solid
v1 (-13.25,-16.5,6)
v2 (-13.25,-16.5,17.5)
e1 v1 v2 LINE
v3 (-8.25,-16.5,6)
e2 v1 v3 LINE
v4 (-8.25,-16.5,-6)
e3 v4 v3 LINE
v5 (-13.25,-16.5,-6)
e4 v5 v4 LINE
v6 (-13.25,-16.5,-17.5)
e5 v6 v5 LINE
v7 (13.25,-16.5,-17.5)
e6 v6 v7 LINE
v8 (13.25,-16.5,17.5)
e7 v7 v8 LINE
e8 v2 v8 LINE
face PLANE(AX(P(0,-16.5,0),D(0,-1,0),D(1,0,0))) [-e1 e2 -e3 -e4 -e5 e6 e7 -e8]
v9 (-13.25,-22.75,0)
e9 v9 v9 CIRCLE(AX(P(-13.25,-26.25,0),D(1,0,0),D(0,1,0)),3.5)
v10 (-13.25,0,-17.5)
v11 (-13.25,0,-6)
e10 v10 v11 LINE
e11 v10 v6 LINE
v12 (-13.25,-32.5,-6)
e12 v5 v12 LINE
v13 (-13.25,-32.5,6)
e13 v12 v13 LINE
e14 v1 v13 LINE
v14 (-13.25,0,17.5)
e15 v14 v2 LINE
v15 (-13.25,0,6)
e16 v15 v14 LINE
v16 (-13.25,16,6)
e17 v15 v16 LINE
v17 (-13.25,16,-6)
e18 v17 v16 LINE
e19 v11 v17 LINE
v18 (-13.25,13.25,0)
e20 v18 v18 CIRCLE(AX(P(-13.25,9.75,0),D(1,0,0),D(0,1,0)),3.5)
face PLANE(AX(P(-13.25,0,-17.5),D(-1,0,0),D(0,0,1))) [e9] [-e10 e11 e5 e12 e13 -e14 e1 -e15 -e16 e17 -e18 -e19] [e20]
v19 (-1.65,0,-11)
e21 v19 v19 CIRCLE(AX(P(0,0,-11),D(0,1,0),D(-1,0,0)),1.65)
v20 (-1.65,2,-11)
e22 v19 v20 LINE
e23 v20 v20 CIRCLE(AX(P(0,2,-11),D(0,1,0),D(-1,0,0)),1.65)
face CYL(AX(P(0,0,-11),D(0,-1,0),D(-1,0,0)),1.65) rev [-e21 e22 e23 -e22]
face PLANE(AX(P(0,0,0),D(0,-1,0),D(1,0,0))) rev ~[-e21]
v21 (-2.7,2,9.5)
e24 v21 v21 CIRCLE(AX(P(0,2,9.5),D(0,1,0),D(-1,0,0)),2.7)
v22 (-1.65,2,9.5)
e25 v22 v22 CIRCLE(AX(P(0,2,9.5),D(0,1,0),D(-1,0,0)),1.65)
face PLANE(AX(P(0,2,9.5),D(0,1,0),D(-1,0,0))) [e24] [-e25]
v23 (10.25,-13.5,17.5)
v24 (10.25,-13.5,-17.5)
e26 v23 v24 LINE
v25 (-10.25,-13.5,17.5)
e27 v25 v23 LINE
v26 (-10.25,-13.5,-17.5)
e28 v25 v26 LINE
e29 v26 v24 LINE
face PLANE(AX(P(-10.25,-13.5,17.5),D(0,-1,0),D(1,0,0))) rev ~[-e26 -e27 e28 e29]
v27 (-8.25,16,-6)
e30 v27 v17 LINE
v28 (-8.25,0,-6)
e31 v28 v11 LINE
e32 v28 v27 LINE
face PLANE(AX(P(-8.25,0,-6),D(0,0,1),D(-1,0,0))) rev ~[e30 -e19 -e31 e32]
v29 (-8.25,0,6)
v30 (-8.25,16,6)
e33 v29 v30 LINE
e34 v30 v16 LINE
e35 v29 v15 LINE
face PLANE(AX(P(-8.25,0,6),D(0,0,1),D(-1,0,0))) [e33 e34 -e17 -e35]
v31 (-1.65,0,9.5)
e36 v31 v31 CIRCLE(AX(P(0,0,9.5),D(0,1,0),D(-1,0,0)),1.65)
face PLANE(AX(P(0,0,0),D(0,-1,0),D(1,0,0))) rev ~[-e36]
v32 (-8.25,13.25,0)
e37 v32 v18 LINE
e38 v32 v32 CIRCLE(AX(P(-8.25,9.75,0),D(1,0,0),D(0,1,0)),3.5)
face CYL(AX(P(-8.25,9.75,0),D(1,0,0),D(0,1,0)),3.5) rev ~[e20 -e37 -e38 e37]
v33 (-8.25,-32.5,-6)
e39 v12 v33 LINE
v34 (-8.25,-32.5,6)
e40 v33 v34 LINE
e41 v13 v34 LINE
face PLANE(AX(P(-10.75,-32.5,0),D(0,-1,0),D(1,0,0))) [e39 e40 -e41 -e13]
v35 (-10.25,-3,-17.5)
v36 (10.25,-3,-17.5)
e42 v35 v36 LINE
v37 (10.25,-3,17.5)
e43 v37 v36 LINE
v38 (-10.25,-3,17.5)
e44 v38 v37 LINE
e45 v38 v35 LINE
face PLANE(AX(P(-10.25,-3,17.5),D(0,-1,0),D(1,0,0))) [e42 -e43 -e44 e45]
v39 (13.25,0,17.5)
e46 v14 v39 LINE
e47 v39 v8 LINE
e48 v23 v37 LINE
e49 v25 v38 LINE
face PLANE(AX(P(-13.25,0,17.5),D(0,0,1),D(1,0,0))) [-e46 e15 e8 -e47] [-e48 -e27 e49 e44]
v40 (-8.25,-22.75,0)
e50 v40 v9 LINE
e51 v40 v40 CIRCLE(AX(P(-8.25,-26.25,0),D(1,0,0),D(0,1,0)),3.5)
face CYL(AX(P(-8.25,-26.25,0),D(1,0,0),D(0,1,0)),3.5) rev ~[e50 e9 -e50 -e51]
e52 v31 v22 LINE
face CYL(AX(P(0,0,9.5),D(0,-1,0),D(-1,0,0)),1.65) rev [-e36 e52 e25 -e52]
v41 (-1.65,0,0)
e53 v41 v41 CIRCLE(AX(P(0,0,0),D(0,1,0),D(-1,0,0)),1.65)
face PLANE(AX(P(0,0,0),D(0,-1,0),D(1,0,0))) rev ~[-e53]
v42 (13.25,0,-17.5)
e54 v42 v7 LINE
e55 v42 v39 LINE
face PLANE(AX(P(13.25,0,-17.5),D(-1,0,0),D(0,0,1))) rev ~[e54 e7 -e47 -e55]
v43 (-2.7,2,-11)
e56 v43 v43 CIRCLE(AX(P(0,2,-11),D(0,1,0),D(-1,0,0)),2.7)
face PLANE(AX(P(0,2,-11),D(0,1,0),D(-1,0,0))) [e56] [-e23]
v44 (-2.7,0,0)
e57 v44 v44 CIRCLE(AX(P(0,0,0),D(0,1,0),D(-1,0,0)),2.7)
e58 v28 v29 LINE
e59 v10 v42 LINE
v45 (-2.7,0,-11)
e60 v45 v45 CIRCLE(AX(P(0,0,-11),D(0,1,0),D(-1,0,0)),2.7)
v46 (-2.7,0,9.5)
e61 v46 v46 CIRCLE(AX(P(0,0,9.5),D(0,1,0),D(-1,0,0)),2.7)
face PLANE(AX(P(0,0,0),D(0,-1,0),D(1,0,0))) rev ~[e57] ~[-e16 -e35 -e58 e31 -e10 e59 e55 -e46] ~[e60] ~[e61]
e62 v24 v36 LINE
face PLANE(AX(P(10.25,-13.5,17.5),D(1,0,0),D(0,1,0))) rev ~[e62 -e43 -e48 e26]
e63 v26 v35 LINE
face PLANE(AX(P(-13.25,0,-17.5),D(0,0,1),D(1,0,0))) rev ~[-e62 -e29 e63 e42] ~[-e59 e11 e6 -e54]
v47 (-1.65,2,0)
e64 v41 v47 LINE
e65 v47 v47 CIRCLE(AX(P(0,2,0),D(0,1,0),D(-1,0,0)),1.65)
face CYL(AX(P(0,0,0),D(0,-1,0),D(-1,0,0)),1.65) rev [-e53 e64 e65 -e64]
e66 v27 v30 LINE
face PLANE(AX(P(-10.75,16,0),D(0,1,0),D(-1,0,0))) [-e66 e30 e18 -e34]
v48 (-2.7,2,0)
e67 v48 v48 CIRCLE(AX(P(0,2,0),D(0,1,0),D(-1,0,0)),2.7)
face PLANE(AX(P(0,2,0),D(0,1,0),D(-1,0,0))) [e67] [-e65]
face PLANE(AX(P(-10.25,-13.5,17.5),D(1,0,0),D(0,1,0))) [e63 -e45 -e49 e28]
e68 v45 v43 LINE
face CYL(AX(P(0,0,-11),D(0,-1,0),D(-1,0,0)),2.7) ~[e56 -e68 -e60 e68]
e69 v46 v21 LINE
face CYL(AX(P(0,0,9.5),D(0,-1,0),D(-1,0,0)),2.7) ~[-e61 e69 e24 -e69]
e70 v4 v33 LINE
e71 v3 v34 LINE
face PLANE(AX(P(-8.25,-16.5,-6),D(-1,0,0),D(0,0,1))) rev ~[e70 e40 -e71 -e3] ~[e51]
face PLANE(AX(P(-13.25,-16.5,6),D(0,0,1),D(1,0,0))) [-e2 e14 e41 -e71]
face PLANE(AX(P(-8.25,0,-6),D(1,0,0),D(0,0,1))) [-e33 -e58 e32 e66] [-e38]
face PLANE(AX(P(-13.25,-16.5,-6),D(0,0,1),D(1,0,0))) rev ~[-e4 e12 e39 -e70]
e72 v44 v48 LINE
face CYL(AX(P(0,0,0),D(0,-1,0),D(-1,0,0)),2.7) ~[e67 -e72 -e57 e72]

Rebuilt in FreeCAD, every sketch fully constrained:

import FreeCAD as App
import Part
import Sketcher
from FreeCAD import Vector


def add_polygon(sketch, points):
    """Adds a closed chain of lines whose ends are joined by coincident constraints."""
    first, n = sketch.GeometryCount, len(points)
    for a, b in zip(points, points[1:] + points[:1]):
        sketch.addGeometry(Part.LineSegment(App.Vector(*a, 0), App.Vector(*b, 0)), False)
    for i in range(n):
        sketch.addConstraint(Sketcher.Constraint("Coincident", first + i, 2, first + (i + 1) % n, 1))

doc = App.newDocument("Part")
body = doc.addObject("PartDesign::Body", "Body")

# Sketch on XZ plane
sketch1 = body.newObject("Sketcher::SketchObject", "Sketch")
sketch1.AttachmentSupport = (doc.getObject("XZ_Plane"), [""])
sketch1.MapMode = "FlatFace"
add_polygon(sketch1, [(-13.25, 17.5), (-13.25, -17.5), (13.25, -17.5), (13.25, 17.5)])  # lines 0-3
sketch1.addConstraint([
    Sketcher.Constraint("Vertical", 0),
    Sketcher.Constraint("Horizontal", 1),
    Sketcher.Constraint("Vertical", 2),
    Sketcher.Constraint("Horizontal", 3),
    Sketcher.Constraint("Symmetric", 0, 2, 2, 2, -1, 1),
    Sketcher.Constraint("DistanceY", 0, 2, 0, 1, 35.0),
    Sketcher.Constraint("DistanceX", 1, 1, 1, 2, 26.5),
])
pad1 = body.newObject("PartDesign::Pad", "Pad")
pad1.Profile = sketch1
pad1.Length = 16.5

# Sketch on XY plane
sketch2 = body.newObject("Sketcher::SketchObject", "Sketch001")
sketch2.AttachmentSupport = (doc.getObject("XY_Plane"), [""])
sketch2.MapMode = "FlatFace"
sketch2.AttachmentOffset = App.Placement(Vector(0, 0, 17.5), App.Rotation())
add_polygon(sketch2, [(-10.25, -3), (-10.25, -13.5), (10.25, -13.5), (10.25, -3)])  # lines 0-3
sketch2.addConstraint([
    Sketcher.Constraint("Vertical", 0),
    Sketcher.Constraint("Horizontal", 1),
    Sketcher.Constraint("Vertical", 2),
    Sketcher.Constraint("Horizontal", 3),
    Sketcher.Constraint("DistanceX", 1, 1, 1, 2, 20.5),
    Sketcher.Constraint("DistanceY", 0, 2, 0, 1, 10.5),
    Sketcher.Constraint("DistanceY", 2, 2, -1, 1, 3.0),
    Sketcher.Constraint("DistanceX", 0, 2, -1, 1, 10.25),
])
pocket1 = body.newObject("PartDesign::Pocket", "Pocket")
pocket1.Profile = sketch2
pocket1.Length = 35

# Sketch on XZ plane
sketch3 = body.newObject("Sketcher::SketchObject", "Sketch002")
sketch3.AttachmentSupport = (doc.getObject("XZ_Plane"), [""])
sketch3.MapMode = "FlatFace"
sketch3.addGeometry([
    Part.Circle(Vector(0, 0, 0), Vector(0, 0, 1), 2.7),  # 0
    Part.Circle(Vector(0, 0, 0), Vector(0, 0, 1), 1.65),  # 1
    Part.Circle(Vector(0, 9.5, 0), Vector(0, 0, 1), 2.7),  # 2
    Part.Circle(Vector(0, 9.5, 0), Vector(0, 0, 1), 1.65),  # 3
    Part.Circle(Vector(0, -11, 0), Vector(0, 0, 1), 2.7),  # 4
    Part.Circle(Vector(0, -11, 0), Vector(0, 0, 1), 1.65),  # 5
], False)
sketch3.addConstraint([
    Sketcher.Constraint("Coincident", 0, 3, -1, 1),
    Sketcher.Constraint("Coincident", 1, 3, -1, 1),
    Sketcher.Constraint("Coincident", 3, 3, 2, 3),
    Sketcher.Constraint("Coincident", 5, 3, 4, 3),
    Sketcher.Constraint("Equal", 0, 2),
    Sketcher.Constraint("Equal", 1, 3),
    Sketcher.Constraint("Equal", 2, 4),
    Sketcher.Constraint("Equal", 3, 5),
    Sketcher.Constraint("PointOnObject", 2, 3, -2),
    Sketcher.Constraint("PointOnObject", 4, 3, -2),
    Sketcher.Constraint("Diameter", 0, 5.4),
    Sketcher.Constraint("Diameter", 1, 3.3),
    Sketcher.Constraint("DistanceY", 4, 3, -1, 1, 11.0),
    Sketcher.Constraint("DistanceY", -1, 1, 2, 3, 9.5),
])
pad2 = body.newObject("PartDesign::Pad", "Pad001")
pad2.Profile = sketch3
pad2.Length = 2
pad2.Reversed = True

# Sketch on XZ plane
sketch4 = body.newObject("Sketcher::SketchObject", "Sketch003")
sketch4.AttachmentSupport = (doc.getObject("XZ_Plane"), [""])
sketch4.MapMode = "FlatFace"
sketch4.AttachmentOffset = App.Placement(Vector(0, 0, 16.5), App.Rotation())
add_polygon(sketch4, [(-13.25, 6), (-13.25, -6), (-8.25, -6), (-8.25, 6)])  # lines 0-3
sketch4.addConstraint([
    Sketcher.Constraint("Vertical", 0),
    Sketcher.Constraint("Horizontal", 1),
    Sketcher.Constraint("Vertical", 2),
    Sketcher.Constraint("Horizontal", 3),
    Sketcher.Constraint("DistanceX", 1, 1, 1, 2, 5.0),
    Sketcher.Constraint("DistanceY", 0, 2, 0, 1, 12.0),
    Sketcher.Constraint("DistanceY", 0, 2, -1, 1, 6.0),
    Sketcher.Constraint("DistanceX", 0, 2, -1, 1, 13.25),
])
pad3 = body.newObject("PartDesign::Pad", "Pad002")
pad3.Profile = sketch4
pad3.Length = 16

# Sketch on XZ plane
sketch5 = body.newObject("Sketcher::SketchObject", "Sketch004")
sketch5.AttachmentSupport = (doc.getObject("XZ_Plane"), [""])
sketch5.MapMode = "FlatFace"
add_polygon(sketch5, [(-8.25, 6), (-8.25, -6), (-13.25, -6), (-13.25, 6)])  # lines 0-3
sketch5.addConstraint([
    Sketcher.Constraint("Vertical", 0),
    Sketcher.Constraint("Horizontal", 1),
    Sketcher.Constraint("Vertical", 2),
    Sketcher.Constraint("Horizontal", 3),
    Sketcher.Constraint("DistanceX", 1, 2, 1, 1, 5.0),
    Sketcher.Constraint("DistanceY", 0, 2, 0, 1, 12.0),
    Sketcher.Constraint("DistanceY", 0, 2, -1, 1, 6.0),
    Sketcher.Constraint("DistanceX", 0, 2, -1, 1, 8.25),
])
pad4 = body.newObject("PartDesign::Pad", "Pad003")
pad4.Profile = sketch5
pad4.Length = 16
pad4.Reversed = True

# Sketch on YZ plane
sketch6 = body.newObject("Sketcher::SketchObject", "Sketch005")
sketch6.AttachmentSupport = (doc.getObject("YZ_Plane"), [""])
sketch6.MapMode = "FlatFace"
sketch6.AttachmentOffset = App.Placement(Vector(0, 0, -8.25), App.Rotation())
sketch6.addGeometry(Part.Circle(Vector(9.75, 0, 0), Vector(0, 0, 1), 3.5), False)
sketch6.addConstraint([
    Sketcher.Constraint("PointOnObject", 0, 3, -1),
    Sketcher.Constraint("Diameter", 0, 7.0),
    Sketcher.Constraint("DistanceX", -1, 1, 0, 3, 9.75),
])
pocket2 = body.newObject("PartDesign::Pocket", "Pocket001")
pocket2.Profile = sketch6
pocket2.Length = 5

# Sketch on YZ plane
sketch7 = body.newObject("Sketcher::SketchObject", "Sketch006")
sketch7.AttachmentSupport = (doc.getObject("YZ_Plane"), [""])
sketch7.MapMode = "FlatFace"
sketch7.AttachmentOffset = App.Placement(Vector(0, 0, -8.25), App.Rotation())
sketch7.addGeometry(Part.Circle(Vector(-26.25, 0, 0), Vector(0, 0, 1), 3.5), False)
sketch7.addConstraint([
    Sketcher.Constraint("PointOnObject", 0, 3, -1),
    Sketcher.Constraint("Diameter", 0, 7.0),
    Sketcher.Constraint("DistanceX", 0, 3, -1, 1, 26.25),
])
pocket3 = body.newObject("PartDesign::Pocket", "Pocket002")
pocket3.Profile = sketch7
pocket3.Length = 5

doc.recompute()
